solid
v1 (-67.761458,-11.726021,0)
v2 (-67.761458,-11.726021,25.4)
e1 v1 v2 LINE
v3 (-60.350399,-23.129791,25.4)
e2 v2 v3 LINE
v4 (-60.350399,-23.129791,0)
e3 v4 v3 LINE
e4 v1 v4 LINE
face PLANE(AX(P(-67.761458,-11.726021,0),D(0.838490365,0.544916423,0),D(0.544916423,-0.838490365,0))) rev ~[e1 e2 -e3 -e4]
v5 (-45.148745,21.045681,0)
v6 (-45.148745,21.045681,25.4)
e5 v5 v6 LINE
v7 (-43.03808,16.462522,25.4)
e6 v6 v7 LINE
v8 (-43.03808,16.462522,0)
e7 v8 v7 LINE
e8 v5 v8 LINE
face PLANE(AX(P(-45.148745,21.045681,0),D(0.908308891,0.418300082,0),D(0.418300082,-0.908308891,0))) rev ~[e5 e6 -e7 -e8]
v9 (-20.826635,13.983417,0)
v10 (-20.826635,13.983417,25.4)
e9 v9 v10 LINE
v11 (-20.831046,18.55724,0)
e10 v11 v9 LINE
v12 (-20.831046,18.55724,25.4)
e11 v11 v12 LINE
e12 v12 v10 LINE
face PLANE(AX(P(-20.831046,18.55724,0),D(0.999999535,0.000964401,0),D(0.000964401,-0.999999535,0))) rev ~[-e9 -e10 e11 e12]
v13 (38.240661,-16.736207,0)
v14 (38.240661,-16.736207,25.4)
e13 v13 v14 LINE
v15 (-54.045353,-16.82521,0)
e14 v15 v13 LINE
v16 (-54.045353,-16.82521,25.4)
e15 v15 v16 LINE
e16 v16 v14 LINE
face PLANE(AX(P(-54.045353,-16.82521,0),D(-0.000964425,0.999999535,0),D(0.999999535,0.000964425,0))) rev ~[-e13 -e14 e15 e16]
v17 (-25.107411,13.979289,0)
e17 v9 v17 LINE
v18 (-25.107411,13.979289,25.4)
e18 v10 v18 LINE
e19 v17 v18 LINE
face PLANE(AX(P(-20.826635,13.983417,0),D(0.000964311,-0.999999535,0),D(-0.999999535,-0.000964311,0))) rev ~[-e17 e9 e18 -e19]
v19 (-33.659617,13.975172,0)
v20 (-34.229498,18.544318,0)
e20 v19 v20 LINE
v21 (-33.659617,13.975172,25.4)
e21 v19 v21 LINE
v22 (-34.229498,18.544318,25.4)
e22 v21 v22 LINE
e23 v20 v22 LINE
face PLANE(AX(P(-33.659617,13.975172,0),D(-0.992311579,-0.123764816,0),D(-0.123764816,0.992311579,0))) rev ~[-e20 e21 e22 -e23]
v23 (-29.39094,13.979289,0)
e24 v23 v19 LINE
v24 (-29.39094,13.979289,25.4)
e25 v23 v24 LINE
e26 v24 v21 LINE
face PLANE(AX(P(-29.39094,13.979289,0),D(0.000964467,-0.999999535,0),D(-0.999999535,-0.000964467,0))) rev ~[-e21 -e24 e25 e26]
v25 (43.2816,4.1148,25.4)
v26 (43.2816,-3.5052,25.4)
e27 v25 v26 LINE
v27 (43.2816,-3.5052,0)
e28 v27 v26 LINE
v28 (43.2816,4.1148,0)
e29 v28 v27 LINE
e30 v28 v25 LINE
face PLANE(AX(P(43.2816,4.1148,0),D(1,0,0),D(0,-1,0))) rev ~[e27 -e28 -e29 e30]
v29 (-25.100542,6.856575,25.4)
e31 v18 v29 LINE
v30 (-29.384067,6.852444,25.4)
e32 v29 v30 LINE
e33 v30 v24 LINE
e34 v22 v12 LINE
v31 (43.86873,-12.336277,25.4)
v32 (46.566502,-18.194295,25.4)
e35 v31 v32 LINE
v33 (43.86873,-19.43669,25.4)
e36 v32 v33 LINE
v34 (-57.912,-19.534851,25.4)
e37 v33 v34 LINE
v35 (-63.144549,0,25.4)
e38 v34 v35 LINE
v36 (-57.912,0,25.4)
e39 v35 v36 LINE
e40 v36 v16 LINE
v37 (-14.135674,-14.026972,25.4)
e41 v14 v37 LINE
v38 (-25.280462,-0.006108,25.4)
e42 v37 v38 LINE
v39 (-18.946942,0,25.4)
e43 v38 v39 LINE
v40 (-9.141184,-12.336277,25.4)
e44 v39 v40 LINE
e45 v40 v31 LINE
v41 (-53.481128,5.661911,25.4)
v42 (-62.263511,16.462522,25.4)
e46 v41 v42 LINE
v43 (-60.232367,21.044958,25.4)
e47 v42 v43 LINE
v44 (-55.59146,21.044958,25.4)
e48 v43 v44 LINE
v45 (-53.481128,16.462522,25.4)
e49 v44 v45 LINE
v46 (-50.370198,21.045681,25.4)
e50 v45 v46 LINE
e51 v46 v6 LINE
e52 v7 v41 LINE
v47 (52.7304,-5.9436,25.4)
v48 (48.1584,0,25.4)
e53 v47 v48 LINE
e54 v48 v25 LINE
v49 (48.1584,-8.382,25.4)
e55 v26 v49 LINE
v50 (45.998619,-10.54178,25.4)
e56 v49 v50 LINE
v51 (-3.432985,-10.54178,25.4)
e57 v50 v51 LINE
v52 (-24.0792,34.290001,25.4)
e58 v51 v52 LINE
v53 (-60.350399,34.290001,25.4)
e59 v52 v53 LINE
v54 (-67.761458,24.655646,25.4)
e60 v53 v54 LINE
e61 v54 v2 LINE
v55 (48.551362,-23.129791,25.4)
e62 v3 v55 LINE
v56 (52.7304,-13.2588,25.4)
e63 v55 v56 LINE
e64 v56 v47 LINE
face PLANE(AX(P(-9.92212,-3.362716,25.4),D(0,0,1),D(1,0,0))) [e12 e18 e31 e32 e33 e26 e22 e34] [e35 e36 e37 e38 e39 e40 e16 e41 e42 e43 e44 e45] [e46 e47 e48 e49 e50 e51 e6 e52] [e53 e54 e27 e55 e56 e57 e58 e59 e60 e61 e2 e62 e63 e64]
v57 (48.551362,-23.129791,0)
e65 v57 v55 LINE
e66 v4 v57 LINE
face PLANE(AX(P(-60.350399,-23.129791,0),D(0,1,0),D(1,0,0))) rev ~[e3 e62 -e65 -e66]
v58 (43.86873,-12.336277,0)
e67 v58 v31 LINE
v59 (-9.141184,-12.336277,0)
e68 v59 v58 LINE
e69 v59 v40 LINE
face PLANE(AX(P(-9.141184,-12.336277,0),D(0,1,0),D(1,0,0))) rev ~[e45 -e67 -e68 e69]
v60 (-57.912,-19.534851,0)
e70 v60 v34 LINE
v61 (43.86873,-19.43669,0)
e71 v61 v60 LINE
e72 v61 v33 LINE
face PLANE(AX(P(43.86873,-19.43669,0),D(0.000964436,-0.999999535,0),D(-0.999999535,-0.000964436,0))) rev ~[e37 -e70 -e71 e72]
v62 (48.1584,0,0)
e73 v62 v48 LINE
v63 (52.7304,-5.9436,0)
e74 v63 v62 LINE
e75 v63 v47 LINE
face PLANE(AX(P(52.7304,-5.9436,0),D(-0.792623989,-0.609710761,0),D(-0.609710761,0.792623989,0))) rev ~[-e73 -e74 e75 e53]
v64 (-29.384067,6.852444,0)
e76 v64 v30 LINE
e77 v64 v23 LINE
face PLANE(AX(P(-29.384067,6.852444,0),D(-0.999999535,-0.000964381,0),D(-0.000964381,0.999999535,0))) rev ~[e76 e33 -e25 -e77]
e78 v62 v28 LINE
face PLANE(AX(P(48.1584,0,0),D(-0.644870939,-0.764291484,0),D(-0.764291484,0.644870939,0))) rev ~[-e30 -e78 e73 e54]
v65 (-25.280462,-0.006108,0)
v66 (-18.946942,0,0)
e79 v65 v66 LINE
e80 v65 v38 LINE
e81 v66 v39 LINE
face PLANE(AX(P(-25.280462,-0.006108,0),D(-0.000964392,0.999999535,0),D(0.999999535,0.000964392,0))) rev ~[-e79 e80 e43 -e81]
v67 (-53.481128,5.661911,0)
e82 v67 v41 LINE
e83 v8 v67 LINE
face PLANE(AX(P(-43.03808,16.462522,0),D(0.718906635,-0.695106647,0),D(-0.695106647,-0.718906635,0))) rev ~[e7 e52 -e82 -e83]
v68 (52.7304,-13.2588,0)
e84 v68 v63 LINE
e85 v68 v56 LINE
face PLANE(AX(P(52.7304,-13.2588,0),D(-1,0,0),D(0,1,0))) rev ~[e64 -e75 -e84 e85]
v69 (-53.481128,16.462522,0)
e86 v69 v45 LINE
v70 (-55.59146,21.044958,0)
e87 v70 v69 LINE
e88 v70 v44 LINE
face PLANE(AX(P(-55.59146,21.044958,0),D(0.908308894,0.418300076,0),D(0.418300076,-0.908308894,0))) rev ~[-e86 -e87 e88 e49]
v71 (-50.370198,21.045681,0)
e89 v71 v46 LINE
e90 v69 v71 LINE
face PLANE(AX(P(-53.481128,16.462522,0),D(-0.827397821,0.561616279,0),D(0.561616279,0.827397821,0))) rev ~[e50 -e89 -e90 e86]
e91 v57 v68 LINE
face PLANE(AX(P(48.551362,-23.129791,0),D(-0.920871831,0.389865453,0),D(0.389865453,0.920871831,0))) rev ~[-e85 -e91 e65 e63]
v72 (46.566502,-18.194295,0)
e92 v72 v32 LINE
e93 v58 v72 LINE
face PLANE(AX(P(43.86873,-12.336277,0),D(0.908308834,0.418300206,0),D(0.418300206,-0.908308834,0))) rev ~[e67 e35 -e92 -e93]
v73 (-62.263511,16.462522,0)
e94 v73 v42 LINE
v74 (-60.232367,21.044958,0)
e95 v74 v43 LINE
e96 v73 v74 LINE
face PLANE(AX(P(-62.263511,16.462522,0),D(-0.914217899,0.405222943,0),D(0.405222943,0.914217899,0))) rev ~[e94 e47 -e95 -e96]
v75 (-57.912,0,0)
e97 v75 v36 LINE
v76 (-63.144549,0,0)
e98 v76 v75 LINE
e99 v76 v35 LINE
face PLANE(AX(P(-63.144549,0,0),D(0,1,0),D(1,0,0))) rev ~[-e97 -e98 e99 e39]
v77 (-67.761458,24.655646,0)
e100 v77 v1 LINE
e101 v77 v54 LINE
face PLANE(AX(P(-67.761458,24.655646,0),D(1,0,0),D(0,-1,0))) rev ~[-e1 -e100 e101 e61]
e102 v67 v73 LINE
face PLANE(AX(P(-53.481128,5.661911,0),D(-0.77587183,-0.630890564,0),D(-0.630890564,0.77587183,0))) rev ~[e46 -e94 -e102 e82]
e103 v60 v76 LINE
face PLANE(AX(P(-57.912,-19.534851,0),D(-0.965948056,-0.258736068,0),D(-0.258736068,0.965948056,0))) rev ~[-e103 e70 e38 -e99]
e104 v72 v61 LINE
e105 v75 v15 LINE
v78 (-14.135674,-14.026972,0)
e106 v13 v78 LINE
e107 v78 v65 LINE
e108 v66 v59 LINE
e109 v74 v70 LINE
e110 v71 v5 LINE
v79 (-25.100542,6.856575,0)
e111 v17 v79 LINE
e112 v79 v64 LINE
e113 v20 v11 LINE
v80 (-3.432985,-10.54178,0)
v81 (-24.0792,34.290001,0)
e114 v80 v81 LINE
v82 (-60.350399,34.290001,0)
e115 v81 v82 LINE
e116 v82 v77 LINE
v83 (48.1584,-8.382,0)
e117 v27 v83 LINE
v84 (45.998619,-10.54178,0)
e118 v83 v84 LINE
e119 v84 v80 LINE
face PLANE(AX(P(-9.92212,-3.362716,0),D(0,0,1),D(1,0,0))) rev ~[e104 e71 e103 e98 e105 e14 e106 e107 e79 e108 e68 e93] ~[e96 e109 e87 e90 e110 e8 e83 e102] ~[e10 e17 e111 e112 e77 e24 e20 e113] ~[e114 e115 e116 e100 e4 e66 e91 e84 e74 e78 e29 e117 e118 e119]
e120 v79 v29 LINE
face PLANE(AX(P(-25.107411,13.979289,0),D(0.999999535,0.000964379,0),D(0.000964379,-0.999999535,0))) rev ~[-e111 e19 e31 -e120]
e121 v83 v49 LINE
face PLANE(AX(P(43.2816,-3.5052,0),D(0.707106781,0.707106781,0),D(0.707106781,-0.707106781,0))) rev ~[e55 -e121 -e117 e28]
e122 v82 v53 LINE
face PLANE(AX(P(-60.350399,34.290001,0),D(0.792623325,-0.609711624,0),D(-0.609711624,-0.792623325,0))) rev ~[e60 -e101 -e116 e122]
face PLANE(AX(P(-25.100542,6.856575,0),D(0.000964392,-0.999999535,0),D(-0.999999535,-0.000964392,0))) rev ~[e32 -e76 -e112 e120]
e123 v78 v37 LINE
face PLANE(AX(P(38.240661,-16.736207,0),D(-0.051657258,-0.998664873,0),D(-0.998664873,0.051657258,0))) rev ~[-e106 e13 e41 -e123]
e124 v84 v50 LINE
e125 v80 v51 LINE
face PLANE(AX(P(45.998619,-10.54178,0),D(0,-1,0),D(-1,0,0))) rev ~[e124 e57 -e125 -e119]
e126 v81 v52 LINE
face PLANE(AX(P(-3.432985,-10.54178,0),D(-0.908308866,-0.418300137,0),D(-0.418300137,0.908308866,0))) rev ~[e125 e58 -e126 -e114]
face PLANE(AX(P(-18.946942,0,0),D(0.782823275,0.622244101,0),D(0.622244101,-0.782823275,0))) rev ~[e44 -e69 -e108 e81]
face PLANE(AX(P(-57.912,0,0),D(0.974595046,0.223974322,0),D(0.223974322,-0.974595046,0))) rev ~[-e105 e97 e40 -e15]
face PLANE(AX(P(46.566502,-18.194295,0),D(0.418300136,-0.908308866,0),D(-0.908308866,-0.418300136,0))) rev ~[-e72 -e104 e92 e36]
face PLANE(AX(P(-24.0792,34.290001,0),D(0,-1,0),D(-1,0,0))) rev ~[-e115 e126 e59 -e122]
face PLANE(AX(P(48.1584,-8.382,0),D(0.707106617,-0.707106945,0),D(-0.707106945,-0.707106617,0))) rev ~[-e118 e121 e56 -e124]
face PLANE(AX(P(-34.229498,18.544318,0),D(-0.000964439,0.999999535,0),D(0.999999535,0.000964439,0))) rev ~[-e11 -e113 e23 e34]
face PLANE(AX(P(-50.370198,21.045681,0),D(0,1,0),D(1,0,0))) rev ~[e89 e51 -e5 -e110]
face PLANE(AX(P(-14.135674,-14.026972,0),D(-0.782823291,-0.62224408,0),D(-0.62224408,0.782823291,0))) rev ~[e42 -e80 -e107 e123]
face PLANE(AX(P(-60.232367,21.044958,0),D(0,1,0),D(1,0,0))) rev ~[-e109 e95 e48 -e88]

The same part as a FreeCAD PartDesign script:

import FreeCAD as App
import Part
import Sketcher
from FreeCAD import Vector
Q = App.Units.Quantity

doc = App.newDocument("Part")
body = doc.addObject("PartDesign::Body", "Body")

sketch1 = body.newObject("Sketcher::SketchObject", "Sketch")
sketch1.AttachmentSupport = (doc.getObject("XY_Plane"), [""])
sketch1.MapMode = "FlatFace"
sketch1.addGeometry(Part.LineSegment(Vector(-24.0792, 34.290001, 0), Vector(-60.350399, 34.290001, 0)), False)
sketch1.addGeometry(Part.LineSegment(Vector(-60.350399, 34.290001, 0), Vector(-67.761458, 24.655646, 0)), False)
sketch1.addGeometry(Part.LineSegment(Vector(-67.761458, 24.655646, 0), Vector(-67.761458, -11.726021, 0)), False)
sketch1.addGeometry(Part.LineSegment(Vector(-67.761458, -11.726021, 0), Vector(-60.350399, -23.129791, 0)), False)
sketch1.addGeometry(Part.LineSegment(Vector(-60.350399, -23.129791, 0), Vector(48.551362, -23.129791, 0)), False)
sketch1.addGeometry(Part.LineSegment(Vector(48.551362, -23.129791, 0), Vector(52.7304, -13.2588, 0)), False)
sketch1.addGeometry(Part.LineSegment(Vector(52.7304, -13.2588, 0), Vector(52.7304, -5.9436, 0)), False)
sketch1.addGeometry(Part.LineSegment(Vector(52.7304, -5.9436, 0), Vector(48.1584, 0, 0)), False)
sketch1.addGeometry(Part.LineSegment(Vector(48.1584, 0, 0), Vector(43.2816, 4.1148, 0)), False)
sketch1.addGeometry(Part.LineSegment(Vector(43.2816, 4.1148, 0), Vector(43.2816, -3.5052, 0)), False)
sketch1.addGeometry(Part.LineSegment(Vector(43.2816, -3.5052, 0), Vector(48.1584, -8.382, 0)), False)
sketch1.addGeometry(Part.LineSegment(Vector(48.1584, -8.382, 0), Vector(45.998619, -10.54178, 0)), False)
sketch1.addGeometry(Part.LineSegment(Vector(45.998619, -10.54178, 0), Vector(-3.432985, -10.54178, 0)), False)
sketch1.addGeometry(Part.LineSegment(Vector(-3.432985, -10.54178, 0), Vector(-24.0792, 34.290001, 0)), False)
sketch1.addGeometry(Part.LineSegment(Vector(43.86873, -19.43669, 0), Vector(-57.912, -19.534851, 0)), False)
sketch1.addGeometry(Part.LineSegment(Vector(-57.912, -19.534851, 0), Vector(-63.144549, 0, 0)), False)
sketch1.addGeometry(Part.LineSegment(Vector(-63.144549, 0, 0), Vector(-57.912, 0, 0)), False)
sketch1.addGeometry(Part.LineSegment(Vector(-57.912, 0, 0), Vector(-54.045353, -16.82521, 0)), False)
sketch1.addGeometry(Part.LineSegment(Vector(-54.045353, -16.82521, 0), Vector(38.240661, -16.736207, 0)), False)
sketch1.addGeometry(Part.LineSegment(Vector(38.240661, -16.736207, 0), Vector(-14.135674, -14.026972, 0)), False)
sketch1.addGeometry(Part.LineSegment(Vector(-14.135674, -14.026972, 0), Vector(-25.280462, -0.006108, 0)), False)
sketch1.addGeometry(Part.LineSegment(Vector(-25.280462, -0.006108, 0), Vector(-18.946942, 0, 0)), False)
sketch1.addGeometry(Part.LineSegment(Vector(-18.946942, 0, 0), Vector(-9.141184, -12.336277, 0)), False)
sketch1.addGeometry(Part.LineSegment(Vector(-9.141184, -12.336277, 0), Vector(43.86873, -12.336277, 0)), False)
sketch1.addGeometry(Part.LineSegment(Vector(43.86873, -12.336277, 0), Vector(46.566502, -18.194295, 0)), False)
sketch1.addGeometry(Part.LineSegment(Vector(46.566502, -18.194295, 0), Vector(43.86873, -19.43669, 0)), False)
sketch1.addGeometry(Part.LineSegment(Vector(-53.481128, 5.661911, 0), Vector(-62.263511, 16.462522, 0)), False)
sketch1.addGeometry(Part.LineSegment(Vector(-62.263511, 16.462522, 0), Vector(-60.232367, 21.044958, 0)), False)
sketch1.addGeometry(Part.LineSegment(Vector(-60.232367, 21.044958, 0), Vector(-55.59146, 21.044958, 0)), False)
sketch1.addGeometry(Part.LineSegment(Vector(-55.59146, 21.044958, 0), Vector(-53.481128, 16.462522, 0)), False)
sketch1.addGeometry(Part.LineSegment(Vector(-53.481128, 16.462522, 0), Vector(-50.370198, 21.045681, 0)), False)
sketch1.addGeometry(Part.LineSegment(Vector(-50.370198, 21.045681, 0), Vector(-45.148745, 21.045681, 0)), False)
sketch1.addGeometry(Part.LineSegment(Vector(-45.148745, 21.045681, 0), Vector(-43.03808, 16.462522, 0)), False)
sketch1.addGeometry(Part.LineSegment(Vector(-43.03808, 16.462522, 0), Vector(-53.481128, 5.661911, 0)), False)
sketch1.addGeometry(Part.LineSegment(Vector(-29.39094, 13.979289, 0), Vector(-33.659617, 13.975172, 0)), False)
sketch1.addGeometry(Part.LineSegment(Vector(-33.659617, 13.975172, 0), Vector(-34.229498, 18.544318, 0)), False)
sketch1.addGeometry(Part.LineSegment(Vector(-34.229498, 18.544318, 0), Vector(-20.831046, 18.55724, 0)), False)
sketch1.addGeometry(Part.LineSegment(Vector(-20.831046, 18.55724, 0), Vector(-20.826635, 13.983417, 0)), False)
sketch1.addGeometry(Part.LineSegment(Vector(-20.826635, 13.983417, 0), Vector(-25.107411, 13.979289, 0)), False)
sketch1.addGeometry(Part.LineSegment(Vector(-25.107411, 13.979289, 0), Vector(-25.100542, 6.856575, 0)), False)
sketch1.addGeometry(Part.LineSegment(Vector(-25.100542, 6.856575, 0), Vector(-29.384067, 6.852444, 0)), False)
sketch1.addGeometry(Part.LineSegment(Vector(-29.384067, 6.852444, 0), Vector(-29.39094, 13.979289, 0)), False)
sketch1.addConstraint(Sketcher.Constraint("Coincident", 0, 2, 1, 1))
sketch1.addConstraint(Sketcher.Constraint("Coincident", 1, 2, 2, 1))
sketch1.addConstraint(Sketcher.Constraint("Coincident", 2, 2, 3, 1))
sketch1.addConstraint(Sketcher.Constraint("Coincident", 3, 2, 4, 1))
sketch1.addConstraint(Sketcher.Constraint("Coincident", 4, 2, 5, 1))
sketch1.addConstraint(Sketcher.Constraint("Coincident", 5, 2, 6, 1))
sketch1.addConstraint(Sketcher.Constraint("Coincident", 6, 2, 7, 1))
sketch1.addConstraint(Sketcher.Constraint("Coincident", 7, 2, 8, 1))
sketch1.addConstraint(Sketcher.Constraint("Coincident", 8, 2, 9, 1))
sketch1.addConstraint(Sketcher.Constraint("Coincident", 9, 2, 10, 1))
sketch1.addConstraint(Sketcher.Constraint("Coincident", 10, 2, 11, 1))
sketch1.addConstraint(Sketcher.Constraint("Coincident", 11, 2, 12, 1))
sketch1.addConstraint(Sketcher.Constraint("Coincident", 12, 2, 13, 1))
sketch1.addConstraint(Sketcher.Constraint("Coincident", 13, 2, 0, 1))
sketch1.addConstraint(Sketcher.Constraint("Coincident", 14, 2, 15, 1))
sketch1.addConstraint(Sketcher.Constraint("Coincident", 15, 2, 16, 1))
sketch1.addConstraint(Sketcher.Constraint("Coincident", 16, 2, 17, 1))
sketch1.addConstraint(Sketcher.Constraint("Coincident", 17, 2, 18, 1))
sketch1.addConstraint(Sketcher.Constraint("Coincident", 18, 2, 19, 1))
sketch1.addConstraint(Sketcher.Constraint("Coincident", 19, 2, 20, 1))
sketch1.addConstraint(Sketcher.Constraint("Coincident", 20, 2, 21, 1))
sketch1.addConstraint(Sketcher.Constraint("Coincident", 21, 2, 22, 1))
sketch1.addConstraint(Sketcher.Constraint("Coincident", 22, 2, 23, 1))
sketch1.addConstraint(Sketcher.Constraint("Coincident", 23, 2, 24, 1))
sketch1.addConstraint(Sketcher.Constraint("Coincident", 24, 2, 25, 1))
sketch1.addConstraint(Sketcher.Constraint("Coincident", 25, 2, 14, 1))
sketch1.addConstraint(Sketcher.Constraint("Coincident", 26, 2, 27, 1))
sketch1.addConstraint(Sketcher.Constraint("Coincident", 27, 2, 28, 1))
sketch1.addConstraint(Sketcher.Constraint("Coincident", 28, 2, 29, 1))
sketch1.addConstraint(Sketcher.Constraint("Coincident", 29, 2, 30, 1))
sketch1.addConstraint(Sketcher.Constraint("Coincident", 30, 2, 31, 1))
sketch1.addConstraint(Sketcher.Constraint("Coincident", 31, 2, 32, 1))
sketch1.addConstraint(Sketcher.Constraint("Coincident", 32, 2, 33, 1))
sketch1.addConstraint(Sketcher.Constraint("Coincident", 33, 2, 26, 1))
sketch1.addConstraint(Sketcher.Constraint("Coincident", 34, 2, 35, 1))
sketch1.addConstraint(Sketcher.Constraint("Coincident", 35, 2, 36, 1))
sketch1.addConstraint(Sketcher.Constraint("Coincident", 36, 2, 37, 1))
sketch1.addConstraint(Sketcher.Constraint("Coincident", 37, 2, 38, 1))
sketch1.addConstraint(Sketcher.Constraint("Coincident", 38, 2, 39, 1))
sketch1.addConstraint(Sketcher.Constraint("Coincident", 39, 2, 40, 1))
sketch1.addConstraint(Sketcher.Constraint("Coincident", 40, 2, 41, 1))
sketch1.addConstraint(Sketcher.Constraint("Coincident", 41, 2, 34, 1))
sketch1.addConstraint(Sketcher.Constraint("Horizontal", 0))
sketch1.addConstraint(Sketcher.Constraint("Vertical", 2))
sketch1.addConstraint(Sketcher.Constraint("Horizontal", 4))
sketch1.addConstraint(Sketcher.Constraint("Vertical", 6))
sketch1.addConstraint(Sketcher.Constraint("Vertical", 9))
sketch1.addConstraint(Sketcher.Constraint("Horizontal", 12))
sketch1.addConstraint(Sketcher.Constraint("Horizontal", 16))
sketch1.addConstraint(Sketcher.Constraint("Horizontal", 23))
sketch1.addConstraint(Sketcher.Constraint("Horizontal", 28))
sketch1.addConstraint(Sketcher.Constraint("Horizontal", 31))
sketch1.addConstraint(Sketcher.Constraint("PointOnObject", 7, 2, -1))
sketch1.addConstraint(Sketcher.Constraint("PointOnObject", 15, 2, -1))
sketch1.addConstraint(Sketcher.Constraint("PointOnObject", 21, 2, -1))
sketch1.addConstraint(Sketcher.Constraint("Perpendicular", 10, 11))
sketch1.addConstraint(Sketcher.Constraint("Parallel", 14, 18))
sketch1.addConstraint(Sketcher.Constraint("Parallel", 18, 21))
sketch1.addConstraint(Sketcher.Constraint("Parallel", 20, 22))
sketch1.addConstraint(Sketcher.Constraint("Parallel", 13, 24))
sketch1.addConstraint(Sketcher.Constraint("Perpendicular", 24, 25))
sketch1.addConstraint(Sketcher.Constraint("Perpendicular", 25, 29))
sketch1.addConstraint(Sketcher.Constraint("Parallel", 29, 32))
sketch1.addConstraint(Sketcher.Constraint("Parallel", 21, 34))
sketch1.addConstraint(Sketcher.Constraint("Parallel", 34, 36))
sketch1.addConstraint(Sketcher.Constraint("Perpendicular", 36, 37))
sketch1.addConstraint(Sketcher.Constraint("Perpendicular", 37, 38))
sketch1.addConstraint(Sketcher.Constraint("Perpendicular", 38, 39))
sketch1.addConstraint(Sketcher.Constraint("Perpendicular", 39, 40))
sketch1.addConstraint(Sketcher.Constraint("Perpendicular", 40, 41))
sketch1.addConstraint(Sketcher.Constraint("Horizontal", 26, 2, 29, 2))
sketch1.addConstraint(Sketcher.Constraint("Horizontal", 29, 2, 32, 2))
sketch1.addConstraint(Sketcher.Constraint("Horizontal", 38, 2, 41, 2))
sketch1.addConstraint(Sketcher.Constraint("Vertical", 0, 2, 3, 2))
sketch1.addConstraint(Sketcher.Constraint("Vertical", 7, 2, 10, 2))
sketch1.addConstraint(Sketcher.Constraint("Vertical", 14, 2, 16, 2))
sketch1.addConstraint(Sketcher.Constraint("Vertical", 23, 2, 25, 2))
sketch1.addConstraint(Sketcher.Constraint("Vertical", 29, 2, 33, 2))
sketch1.addConstraint(Sketcher.Constraint("DistanceY", 9, 2, 9, 1, Q("0.3 in")))
sketch1.addConstraint(Sketcher.Constraint("Angle", 10, Q("-45 deg")))
sketch1.addConstraint(Sketcher.Constraint("DistanceX", 0, 2, 0, 1, Q("1.428 in")))
sketch1.addConstraint(Sketcher.Constraint("DistanceY", 6, 1, 6, 2, Q("0.288 in")))
sketch1.addConstraint(Sketcher.Constraint("DistanceY", -1, 1, 0, 2, Q("1.35 in")))
sketch1.addConstraint(Sketcher.Constraint("DistanceY", 10, 2, -1, 1, Q("0.33 in")))
sketch1.addConstraint(Sketcher.Constraint("DistanceX", 14, 2, -1, 1, Q("2.28 in")))
sketch1.addConstraint(Sketcher.Constraint("DistanceX", 7, 2, 6, 2, Q("0.18 in")))
sketch1.addConstraint(Sketcher.Constraint("DistanceX", 3, 2, 8, 2, Q("4.08 in")))
sketch1.addConstraint(Sketcher.Constraint("DistanceX", 0, 2, -1, 1, Q("2.376 in")))
sketch1.addConstraint(Sketcher.Constraint("DistanceX", -1, 1, 5, 2, Q("2.076 in")))
sketch1.addConstraint(Sketcher.Constraint("DistanceY", 5, 2, -1, 1, Q("0.522 in")))
sketch1.addConstraint(Sketcher.Constraint("DistanceY", -1, 1, 36, 2, Q("0.7306 in")))
sketch1.addConstraint(Sketcher.Constraint("Distance", 15, Q("20.223501 mm")))
sketch1.addConstraint(Sketcher.Constraint("Distance", 22, Q("15.7587 mm")))
sketch1.addConstraint(Sketcher.Constraint("DistanceX", 4, 1, 4, 2, Q("108.901761 mm")))
sketch1.addConstraint(Sketcher.Constraint("DistanceX", 16, 1, 16, 2, Q("5.232549 mm")))
sketch1.addConstraint(Sketcher.Constraint("DistanceX", 30, 2, -1, 1, Q("50.370198 mm")))
sketch1.addConstraint(Sketcher.Constraint("DistanceX", 18, 2, 4, 2, Q("10.310701 mm")))
sketch1.addConstraint(Sketcher.Constraint("DistanceY", 17, 2, 20, 2, Q("16.819102 mm")))
sketch1.addConstraint(Sketcher.Constraint("DistanceX", 22, 2, 12, 2, Q("5.708199 mm")))
sketch1.addConstraint(Sketcher.Constraint("DistanceX", 24, 2, 5, 2, Q("6.163898 mm")))
sketch1.addConstraint(Sketcher.Constraint("DistanceY", 4, 2, 25, 2, Q("3.693101 mm")))
sketch1.addConstraint(Sketcher.Constraint("DistanceX", 1, 2, 28, 2, Q("12.169998 mm")))
sketch1.addConstraint(Sketcher.Constraint("DistanceX", 30, 2, 35, 2, Q("16.1407 mm")))
sketch1.addConstraint(Sketcher.Constraint("DistanceY", 37, 2, 35, 2, Q("4.560901 mm")))
sketch1.addConstraint(Sketcher.Constraint("DistanceX", 39, 2, 21, 2, Q("6.1536 mm")))
sketch1.addConstraint(Sketcher.Constraint("Distance", 3, Q("13.600359 mm")))
sketch1.addConstraint(Sketcher.Constraint("Distance", 5, Q("10.71918 mm")))
sketch1.addConstraint(Sketcher.Constraint("Distance", 11, Q("3.054391 mm")))
sketch1.addConstraint(Sketcher.Constraint("Distance", 13, Q("49.357419 mm")))
sketch1.addConstraint(Sketcher.Constraint("Distance", 24, Q("6.449368 mm")))
sketch1.addConstraint(Sketcher.Constraint("Distance", 27, Q("5.012411 mm")))
sketch1.addConstraint(Sketcher.Constraint("Distance", 29, Q("5.045019 mm")))
sketch1.addConstraint(Sketcher.Constraint("Distance", 34, Q("4.268679 mm")))
sketch1.addConstraint(Sketcher.Constraint("Distance", 36, Q("13.398458 mm")))
sketch1.addConstraint(Sketcher.Constraint("Distance", 41, Q("7.126848 mm")))
sketch1.addConstraint(Sketcher.Constraint("DistanceX", 28, 1, 28, 2, Q("4.640907 mm")))
sketch1.addConstraint(Sketcher.Constraint("DistanceX", 31, 1, 31, 2, Q("5.221453 mm")))
sketch1.addConstraint(Sketcher.Constraint("DistanceY", 2, 2, 2, 1, Q("36.381667 mm")))
sketch1.addConstraint(Sketcher.Constraint("DistanceX", 1, 2, -1, 1, Q("67.761458 mm")))
sketch1.addConstraint(Sketcher.Constraint("DistanceX", 20, 2, -1, 1, Q("25.280462 mm")))
sketch1.addConstraint(Sketcher.Constraint("DistanceY", -1, 1, 26, 2, Q("16.462522 mm")))
sketch1.addConstraint(Sketcher.Constraint("DistanceY", -1, 1, 30, 2, Q("21.045681 mm")))
sketch1.addConstraint(Sketcher.Constraint("DistanceY", -1, 1, 33, 2, Q("5.661911 mm")))
sketch1.addConstraint(Sketcher.Constraint("DistanceX", 41, 2, -1, 1, Q("29.39094 mm")))
sketch1.addConstraint(Sketcher.Constraint("DistanceX", 19, 2, 12, 2, Q("10.702689 mm")))
sketch1.addConstraint(Sketcher.Constraint("DistanceX", 17, 2, 19, 2, Q("39.909679 mm")))
pad1 = body.newObject("PartDesign::Pad", "Pad")
pad1.Profile = sketch1
pad1.Length = Q("1 in")

doc.recompute()
